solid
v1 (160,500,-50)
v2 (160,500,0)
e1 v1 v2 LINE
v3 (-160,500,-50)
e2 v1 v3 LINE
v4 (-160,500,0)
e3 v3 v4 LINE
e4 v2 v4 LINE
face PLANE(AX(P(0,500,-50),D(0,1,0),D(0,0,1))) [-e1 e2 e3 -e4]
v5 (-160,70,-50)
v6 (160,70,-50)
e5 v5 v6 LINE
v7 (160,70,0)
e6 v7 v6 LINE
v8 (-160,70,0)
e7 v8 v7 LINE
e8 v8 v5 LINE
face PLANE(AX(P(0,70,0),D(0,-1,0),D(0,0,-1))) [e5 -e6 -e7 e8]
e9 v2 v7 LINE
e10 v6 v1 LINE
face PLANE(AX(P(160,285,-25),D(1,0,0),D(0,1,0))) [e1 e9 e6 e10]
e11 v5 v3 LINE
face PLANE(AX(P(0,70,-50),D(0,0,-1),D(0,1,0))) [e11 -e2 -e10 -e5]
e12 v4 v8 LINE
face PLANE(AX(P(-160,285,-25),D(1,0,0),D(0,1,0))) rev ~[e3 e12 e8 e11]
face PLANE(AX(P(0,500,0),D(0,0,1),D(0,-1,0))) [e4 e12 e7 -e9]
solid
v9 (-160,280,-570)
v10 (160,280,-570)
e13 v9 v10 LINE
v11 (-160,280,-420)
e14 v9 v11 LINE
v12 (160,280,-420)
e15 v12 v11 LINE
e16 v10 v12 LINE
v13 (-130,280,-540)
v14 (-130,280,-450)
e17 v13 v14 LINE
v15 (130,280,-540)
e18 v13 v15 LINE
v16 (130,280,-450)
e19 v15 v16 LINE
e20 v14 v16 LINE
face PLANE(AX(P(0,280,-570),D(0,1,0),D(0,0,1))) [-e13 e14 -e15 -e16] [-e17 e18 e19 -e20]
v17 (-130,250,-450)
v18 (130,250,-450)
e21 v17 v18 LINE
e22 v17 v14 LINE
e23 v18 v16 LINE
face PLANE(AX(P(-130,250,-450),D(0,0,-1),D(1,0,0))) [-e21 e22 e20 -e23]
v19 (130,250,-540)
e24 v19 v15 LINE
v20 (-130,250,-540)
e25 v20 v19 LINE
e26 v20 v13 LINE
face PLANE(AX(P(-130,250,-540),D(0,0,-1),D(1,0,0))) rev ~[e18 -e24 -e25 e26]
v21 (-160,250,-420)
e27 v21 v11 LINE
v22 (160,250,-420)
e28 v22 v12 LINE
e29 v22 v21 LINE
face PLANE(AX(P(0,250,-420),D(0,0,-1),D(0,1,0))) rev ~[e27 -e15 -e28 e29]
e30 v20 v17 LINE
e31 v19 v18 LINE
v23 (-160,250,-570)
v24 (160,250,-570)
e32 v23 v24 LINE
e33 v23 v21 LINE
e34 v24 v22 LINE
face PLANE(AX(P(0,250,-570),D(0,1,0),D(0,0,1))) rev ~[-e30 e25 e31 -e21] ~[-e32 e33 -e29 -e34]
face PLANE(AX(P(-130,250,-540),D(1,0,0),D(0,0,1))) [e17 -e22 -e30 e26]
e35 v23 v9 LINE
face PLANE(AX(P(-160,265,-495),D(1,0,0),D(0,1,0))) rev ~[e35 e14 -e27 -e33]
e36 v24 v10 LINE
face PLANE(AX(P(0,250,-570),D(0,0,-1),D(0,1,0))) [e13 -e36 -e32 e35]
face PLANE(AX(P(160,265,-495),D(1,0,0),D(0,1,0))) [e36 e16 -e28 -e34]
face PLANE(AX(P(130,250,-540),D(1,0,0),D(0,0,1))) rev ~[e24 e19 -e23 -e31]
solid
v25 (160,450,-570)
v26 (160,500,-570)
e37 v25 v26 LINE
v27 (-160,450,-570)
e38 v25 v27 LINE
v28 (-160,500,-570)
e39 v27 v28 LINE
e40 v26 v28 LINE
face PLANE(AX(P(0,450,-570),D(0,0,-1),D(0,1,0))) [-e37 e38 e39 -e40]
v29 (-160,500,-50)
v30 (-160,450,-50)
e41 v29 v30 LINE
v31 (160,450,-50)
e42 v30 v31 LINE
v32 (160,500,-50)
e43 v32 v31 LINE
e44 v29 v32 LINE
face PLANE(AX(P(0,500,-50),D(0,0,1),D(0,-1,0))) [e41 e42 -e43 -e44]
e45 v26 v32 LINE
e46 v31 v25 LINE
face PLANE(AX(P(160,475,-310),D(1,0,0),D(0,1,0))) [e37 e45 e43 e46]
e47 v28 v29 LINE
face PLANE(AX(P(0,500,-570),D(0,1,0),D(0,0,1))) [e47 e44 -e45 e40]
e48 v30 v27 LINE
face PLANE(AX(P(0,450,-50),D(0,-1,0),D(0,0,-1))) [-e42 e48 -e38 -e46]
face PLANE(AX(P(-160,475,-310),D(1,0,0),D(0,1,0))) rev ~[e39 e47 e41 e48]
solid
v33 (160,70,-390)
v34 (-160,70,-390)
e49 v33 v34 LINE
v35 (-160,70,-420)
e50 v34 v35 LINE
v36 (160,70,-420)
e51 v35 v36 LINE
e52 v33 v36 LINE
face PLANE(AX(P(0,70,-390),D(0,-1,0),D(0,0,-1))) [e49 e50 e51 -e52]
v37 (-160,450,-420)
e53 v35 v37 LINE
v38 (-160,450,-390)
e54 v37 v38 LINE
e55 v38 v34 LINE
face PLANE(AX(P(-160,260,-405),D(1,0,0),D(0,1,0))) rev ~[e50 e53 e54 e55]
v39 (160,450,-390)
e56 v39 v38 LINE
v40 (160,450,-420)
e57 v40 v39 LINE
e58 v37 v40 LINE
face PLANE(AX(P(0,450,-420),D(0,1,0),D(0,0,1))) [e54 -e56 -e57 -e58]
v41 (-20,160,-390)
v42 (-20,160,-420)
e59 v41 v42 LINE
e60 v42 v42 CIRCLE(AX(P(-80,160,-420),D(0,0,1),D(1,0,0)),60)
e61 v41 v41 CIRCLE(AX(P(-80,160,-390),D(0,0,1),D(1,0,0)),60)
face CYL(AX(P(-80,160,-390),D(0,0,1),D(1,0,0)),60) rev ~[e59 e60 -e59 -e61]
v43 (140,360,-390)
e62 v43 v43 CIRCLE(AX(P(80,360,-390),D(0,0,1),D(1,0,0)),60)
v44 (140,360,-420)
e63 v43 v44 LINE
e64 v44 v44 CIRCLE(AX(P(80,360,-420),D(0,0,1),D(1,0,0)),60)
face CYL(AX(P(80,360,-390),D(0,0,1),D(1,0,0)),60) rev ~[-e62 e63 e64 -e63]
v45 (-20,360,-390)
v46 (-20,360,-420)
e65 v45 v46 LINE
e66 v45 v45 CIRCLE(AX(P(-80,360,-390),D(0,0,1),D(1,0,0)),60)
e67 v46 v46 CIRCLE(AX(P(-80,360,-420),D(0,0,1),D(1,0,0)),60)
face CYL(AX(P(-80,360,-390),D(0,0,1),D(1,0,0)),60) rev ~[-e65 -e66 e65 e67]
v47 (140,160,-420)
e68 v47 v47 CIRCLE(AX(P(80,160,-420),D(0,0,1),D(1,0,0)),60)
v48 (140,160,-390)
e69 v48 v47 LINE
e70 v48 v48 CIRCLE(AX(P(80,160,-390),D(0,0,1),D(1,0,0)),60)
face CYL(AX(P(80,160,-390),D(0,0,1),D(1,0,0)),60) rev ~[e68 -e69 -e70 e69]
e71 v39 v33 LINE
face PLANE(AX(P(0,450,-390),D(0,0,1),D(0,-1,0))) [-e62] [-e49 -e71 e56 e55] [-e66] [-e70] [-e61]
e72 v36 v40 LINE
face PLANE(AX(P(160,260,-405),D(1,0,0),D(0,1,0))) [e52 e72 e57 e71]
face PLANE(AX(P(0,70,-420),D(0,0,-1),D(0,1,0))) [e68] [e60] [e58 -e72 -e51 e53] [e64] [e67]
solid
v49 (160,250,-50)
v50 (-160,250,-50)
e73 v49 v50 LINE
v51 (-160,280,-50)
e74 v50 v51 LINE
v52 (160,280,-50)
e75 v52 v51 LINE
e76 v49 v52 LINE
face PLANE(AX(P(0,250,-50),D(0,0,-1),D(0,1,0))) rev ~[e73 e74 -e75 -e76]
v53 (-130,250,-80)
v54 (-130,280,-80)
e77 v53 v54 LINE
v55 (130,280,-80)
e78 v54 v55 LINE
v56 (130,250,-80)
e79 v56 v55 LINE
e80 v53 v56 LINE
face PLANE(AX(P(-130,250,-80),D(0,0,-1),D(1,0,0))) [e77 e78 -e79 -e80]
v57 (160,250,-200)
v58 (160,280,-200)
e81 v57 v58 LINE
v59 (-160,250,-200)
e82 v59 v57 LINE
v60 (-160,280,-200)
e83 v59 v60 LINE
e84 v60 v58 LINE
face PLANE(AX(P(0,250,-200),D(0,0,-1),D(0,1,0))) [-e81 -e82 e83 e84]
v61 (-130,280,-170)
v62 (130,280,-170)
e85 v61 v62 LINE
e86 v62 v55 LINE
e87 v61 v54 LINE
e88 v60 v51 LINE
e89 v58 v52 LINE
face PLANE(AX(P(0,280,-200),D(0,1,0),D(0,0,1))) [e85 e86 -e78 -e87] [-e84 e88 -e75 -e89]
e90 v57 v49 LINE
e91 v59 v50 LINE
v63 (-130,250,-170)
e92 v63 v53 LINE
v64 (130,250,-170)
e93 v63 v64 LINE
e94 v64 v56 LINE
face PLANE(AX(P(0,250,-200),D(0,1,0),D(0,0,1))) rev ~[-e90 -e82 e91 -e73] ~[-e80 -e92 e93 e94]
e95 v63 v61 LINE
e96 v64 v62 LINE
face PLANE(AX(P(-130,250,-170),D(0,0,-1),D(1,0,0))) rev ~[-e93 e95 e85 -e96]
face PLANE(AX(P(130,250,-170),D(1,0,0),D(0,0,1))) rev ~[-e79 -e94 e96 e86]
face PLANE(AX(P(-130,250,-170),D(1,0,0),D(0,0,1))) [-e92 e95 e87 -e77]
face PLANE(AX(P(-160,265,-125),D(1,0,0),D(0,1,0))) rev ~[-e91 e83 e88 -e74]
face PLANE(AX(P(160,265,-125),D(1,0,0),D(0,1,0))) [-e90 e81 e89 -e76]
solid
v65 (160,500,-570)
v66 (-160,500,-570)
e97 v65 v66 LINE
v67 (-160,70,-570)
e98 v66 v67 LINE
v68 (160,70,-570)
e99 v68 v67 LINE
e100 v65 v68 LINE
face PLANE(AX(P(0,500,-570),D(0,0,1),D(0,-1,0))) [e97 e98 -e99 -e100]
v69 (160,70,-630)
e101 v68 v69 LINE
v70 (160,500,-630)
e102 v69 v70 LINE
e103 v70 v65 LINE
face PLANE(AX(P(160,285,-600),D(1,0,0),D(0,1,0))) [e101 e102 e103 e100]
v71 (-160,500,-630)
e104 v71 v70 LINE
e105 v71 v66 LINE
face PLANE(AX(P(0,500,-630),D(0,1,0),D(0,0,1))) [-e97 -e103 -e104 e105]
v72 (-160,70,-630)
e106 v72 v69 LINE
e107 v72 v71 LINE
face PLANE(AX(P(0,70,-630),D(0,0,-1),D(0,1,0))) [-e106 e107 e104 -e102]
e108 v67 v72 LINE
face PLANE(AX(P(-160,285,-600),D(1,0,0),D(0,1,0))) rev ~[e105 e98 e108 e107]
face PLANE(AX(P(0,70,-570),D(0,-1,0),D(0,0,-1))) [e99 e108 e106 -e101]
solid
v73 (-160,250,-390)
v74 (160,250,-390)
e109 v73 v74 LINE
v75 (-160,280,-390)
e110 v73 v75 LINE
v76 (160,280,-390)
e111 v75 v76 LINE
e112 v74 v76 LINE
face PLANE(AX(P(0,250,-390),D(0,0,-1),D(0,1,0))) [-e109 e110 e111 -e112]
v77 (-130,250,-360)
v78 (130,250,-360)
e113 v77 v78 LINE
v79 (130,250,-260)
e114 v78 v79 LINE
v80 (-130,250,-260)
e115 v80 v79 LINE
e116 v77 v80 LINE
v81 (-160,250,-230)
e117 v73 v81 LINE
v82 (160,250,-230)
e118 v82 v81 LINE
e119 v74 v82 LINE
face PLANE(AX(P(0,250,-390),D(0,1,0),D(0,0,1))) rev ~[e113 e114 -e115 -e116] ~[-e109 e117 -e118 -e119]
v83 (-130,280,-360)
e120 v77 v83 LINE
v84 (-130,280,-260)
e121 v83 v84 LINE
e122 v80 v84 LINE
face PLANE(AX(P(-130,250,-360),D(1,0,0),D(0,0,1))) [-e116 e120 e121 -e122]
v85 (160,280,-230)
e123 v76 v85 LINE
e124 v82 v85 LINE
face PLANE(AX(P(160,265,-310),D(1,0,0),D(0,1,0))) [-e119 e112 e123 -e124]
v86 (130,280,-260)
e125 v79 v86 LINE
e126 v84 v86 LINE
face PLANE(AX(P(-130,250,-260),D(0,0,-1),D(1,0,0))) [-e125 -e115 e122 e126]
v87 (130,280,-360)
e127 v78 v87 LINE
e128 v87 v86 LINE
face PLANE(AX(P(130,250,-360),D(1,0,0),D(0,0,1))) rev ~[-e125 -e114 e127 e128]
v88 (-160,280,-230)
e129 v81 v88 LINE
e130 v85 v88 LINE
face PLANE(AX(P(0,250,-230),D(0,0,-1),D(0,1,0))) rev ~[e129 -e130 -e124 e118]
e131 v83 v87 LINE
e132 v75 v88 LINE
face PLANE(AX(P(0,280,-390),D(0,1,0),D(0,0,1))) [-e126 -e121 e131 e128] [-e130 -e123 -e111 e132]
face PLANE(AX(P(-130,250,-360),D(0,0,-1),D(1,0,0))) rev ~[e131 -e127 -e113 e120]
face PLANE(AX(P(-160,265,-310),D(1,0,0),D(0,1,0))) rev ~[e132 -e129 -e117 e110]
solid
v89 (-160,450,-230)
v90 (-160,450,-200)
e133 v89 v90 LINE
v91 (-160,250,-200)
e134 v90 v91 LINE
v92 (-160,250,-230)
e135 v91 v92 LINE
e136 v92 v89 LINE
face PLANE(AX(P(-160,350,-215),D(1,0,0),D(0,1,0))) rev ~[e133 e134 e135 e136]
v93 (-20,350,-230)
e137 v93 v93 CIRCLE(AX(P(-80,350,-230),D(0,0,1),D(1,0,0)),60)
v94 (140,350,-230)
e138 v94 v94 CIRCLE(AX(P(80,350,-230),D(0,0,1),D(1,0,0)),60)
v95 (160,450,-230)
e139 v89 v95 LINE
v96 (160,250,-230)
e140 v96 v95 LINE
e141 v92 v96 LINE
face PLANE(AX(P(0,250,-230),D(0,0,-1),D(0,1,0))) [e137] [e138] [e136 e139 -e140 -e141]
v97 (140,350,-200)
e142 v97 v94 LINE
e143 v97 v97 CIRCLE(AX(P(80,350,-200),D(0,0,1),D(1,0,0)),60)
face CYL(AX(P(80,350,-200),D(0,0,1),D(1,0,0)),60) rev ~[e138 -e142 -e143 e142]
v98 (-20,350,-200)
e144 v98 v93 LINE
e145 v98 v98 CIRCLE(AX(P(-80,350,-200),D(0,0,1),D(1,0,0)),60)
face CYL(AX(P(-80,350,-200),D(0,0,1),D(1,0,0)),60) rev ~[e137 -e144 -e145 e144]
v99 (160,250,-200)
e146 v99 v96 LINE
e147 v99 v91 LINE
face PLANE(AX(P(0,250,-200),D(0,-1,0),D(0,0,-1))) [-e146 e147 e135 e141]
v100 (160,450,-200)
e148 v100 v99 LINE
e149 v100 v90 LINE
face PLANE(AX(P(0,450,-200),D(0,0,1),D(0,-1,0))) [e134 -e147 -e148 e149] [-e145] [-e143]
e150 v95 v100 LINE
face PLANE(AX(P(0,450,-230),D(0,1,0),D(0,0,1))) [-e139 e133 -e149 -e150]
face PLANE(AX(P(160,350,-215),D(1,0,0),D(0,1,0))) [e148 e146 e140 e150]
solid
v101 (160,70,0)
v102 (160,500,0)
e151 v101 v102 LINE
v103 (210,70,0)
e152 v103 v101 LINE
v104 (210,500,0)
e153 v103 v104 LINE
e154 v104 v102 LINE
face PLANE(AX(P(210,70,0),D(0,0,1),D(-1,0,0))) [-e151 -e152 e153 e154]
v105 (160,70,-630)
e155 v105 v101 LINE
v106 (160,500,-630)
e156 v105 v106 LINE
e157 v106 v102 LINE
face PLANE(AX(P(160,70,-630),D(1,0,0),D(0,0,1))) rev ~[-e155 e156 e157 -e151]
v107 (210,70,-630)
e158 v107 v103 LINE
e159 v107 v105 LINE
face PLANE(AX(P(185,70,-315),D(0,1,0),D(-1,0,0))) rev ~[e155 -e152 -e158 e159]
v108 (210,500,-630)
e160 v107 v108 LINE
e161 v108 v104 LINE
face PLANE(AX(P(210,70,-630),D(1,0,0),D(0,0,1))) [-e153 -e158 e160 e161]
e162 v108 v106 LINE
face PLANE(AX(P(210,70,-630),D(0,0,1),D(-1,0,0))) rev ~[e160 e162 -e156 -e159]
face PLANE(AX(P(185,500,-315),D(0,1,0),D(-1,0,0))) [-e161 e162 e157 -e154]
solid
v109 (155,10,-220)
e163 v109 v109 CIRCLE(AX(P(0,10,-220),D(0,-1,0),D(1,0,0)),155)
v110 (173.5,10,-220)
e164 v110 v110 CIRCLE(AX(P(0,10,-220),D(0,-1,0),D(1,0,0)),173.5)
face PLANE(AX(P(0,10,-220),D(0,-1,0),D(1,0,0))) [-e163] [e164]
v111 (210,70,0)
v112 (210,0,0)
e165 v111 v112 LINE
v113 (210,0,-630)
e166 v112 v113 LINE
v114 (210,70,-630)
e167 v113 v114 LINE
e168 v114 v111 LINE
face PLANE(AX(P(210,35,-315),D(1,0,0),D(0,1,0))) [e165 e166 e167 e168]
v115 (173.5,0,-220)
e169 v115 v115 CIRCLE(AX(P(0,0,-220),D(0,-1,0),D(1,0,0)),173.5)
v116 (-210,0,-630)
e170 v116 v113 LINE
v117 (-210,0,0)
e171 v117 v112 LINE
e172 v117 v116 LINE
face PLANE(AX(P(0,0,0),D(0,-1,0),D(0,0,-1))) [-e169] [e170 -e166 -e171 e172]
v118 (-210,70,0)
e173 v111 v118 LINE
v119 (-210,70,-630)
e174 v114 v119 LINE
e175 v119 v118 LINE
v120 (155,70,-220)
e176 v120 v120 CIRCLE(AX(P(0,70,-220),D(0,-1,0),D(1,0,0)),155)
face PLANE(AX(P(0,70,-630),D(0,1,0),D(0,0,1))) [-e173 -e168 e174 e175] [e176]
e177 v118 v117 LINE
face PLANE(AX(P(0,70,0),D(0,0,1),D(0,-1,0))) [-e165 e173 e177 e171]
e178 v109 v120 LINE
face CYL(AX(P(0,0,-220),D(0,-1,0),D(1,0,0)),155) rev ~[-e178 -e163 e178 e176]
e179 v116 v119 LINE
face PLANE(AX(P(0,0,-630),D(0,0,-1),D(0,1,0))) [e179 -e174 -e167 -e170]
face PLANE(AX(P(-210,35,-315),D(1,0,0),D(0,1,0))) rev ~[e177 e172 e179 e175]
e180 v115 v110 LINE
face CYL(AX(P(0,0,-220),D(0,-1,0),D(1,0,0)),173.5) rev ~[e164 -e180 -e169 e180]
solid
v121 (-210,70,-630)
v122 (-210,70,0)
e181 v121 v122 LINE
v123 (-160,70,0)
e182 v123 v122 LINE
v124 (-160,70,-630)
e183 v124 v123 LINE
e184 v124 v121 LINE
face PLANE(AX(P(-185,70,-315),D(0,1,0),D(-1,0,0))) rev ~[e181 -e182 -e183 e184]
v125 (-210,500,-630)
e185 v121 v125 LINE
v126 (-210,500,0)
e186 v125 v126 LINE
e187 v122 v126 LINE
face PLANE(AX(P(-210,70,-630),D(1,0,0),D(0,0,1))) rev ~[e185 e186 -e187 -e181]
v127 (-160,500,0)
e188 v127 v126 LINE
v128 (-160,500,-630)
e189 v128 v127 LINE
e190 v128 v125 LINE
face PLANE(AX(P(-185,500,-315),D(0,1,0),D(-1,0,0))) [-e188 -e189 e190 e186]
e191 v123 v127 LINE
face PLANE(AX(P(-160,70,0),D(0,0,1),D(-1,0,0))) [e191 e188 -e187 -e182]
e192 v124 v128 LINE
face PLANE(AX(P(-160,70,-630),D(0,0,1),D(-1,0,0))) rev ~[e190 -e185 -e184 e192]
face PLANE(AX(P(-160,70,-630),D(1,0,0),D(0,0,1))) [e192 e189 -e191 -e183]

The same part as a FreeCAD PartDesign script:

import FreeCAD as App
import Part
import Sketcher

V = App.Vector

doc = App.newDocument("Part")
params = doc.addObject("Spreadsheet::Sheet", "Params")
for row, (alias, value) in enumerate([
    ("sketch1_width", "70 mm"),
    ("sketch1_height", "630 mm"),
    ("pad1_length", "420 mm"),
    ("sketch2_diameter", "310 mm"),
    ("sketch3_diameter", "347 mm"),
    ("sketch3_diameter2", "310 mm"),
    ("pocket2_length", "10 mm"),
    ("sketch4_width", "430 mm"),
    ("sketch4_height", "60 mm"),
    ("pad2_length", "320 mm"),
    ("sketch5_width", "430 mm"),
    ("sketch5_height", "50 mm"),
    ("pad3_length", "320 mm"),
    ("sketch6_width", "50 mm"),
    ("sketch6_height", "520 mm"),
    ("pad4_length", "320 mm"),
    ("sketch7_width", "50 mm"),
    ("sketch7_height", "630 mm"),
    ("pad5_length", "430 mm"),
    ("sketch8_width", "50 mm"),
    ("sketch8_height", "630 mm"),
    ("pad6_length", "430 mm"),
    ("sketch9_width", "30 mm"),
    ("sketch9_height", "150 mm"),
    ("pad7_length", "320 mm"),
    ("sketch10_width", "260 mm"),
    ("sketch10_height", "90 mm"),
    ("sketch11_width", "200 mm"),
    ("sketch11_height", "30 mm"),
    ("pad8_length", "320 mm"),
    ("sketch12_diameter", "120 mm"),
    ("sketch13_width", "30 mm"),
    ("sketch13_height", "160 mm"),
    ("pad9_length", "320 mm"),
    ("sketch14_width", "260 mm"),
    ("sketch14_height", "100 mm"),
    ("sketch15_width", "380 mm"),
    ("sketch15_height", "30 mm"),
    ("pad10_length", "320 mm"),
    ("sketch16_diameter", "120 mm"),
    ("sketch17_width", "30 mm"),
    ("sketch17_height", "150 mm"),
    ("pad11_length", "320 mm"),
    ("sketch18_width", "260 mm"),
    ("sketch18_height", "90 mm"),
], start=1):
    params.set(f"A{row}", alias)
    params.set(f"B{row}", "=" + value)
    params.setAlias(f"B{row}", alias)

body = doc.addObject("PartDesign::Body", "Body")

# Sketch on YZ plane
sketch1 = doc.addObject("Sketcher::SketchObject", "Sketch")
body.addObject(sketch1)
sketch1.AttachmentSupport = (doc.YZ_Plane, [""])
sketch1.MapMode = "FlatFace"
sketch1.addGeometry([
    Part.LineSegment(V(70, 0, 0), V(0, 0, 0)),
    Part.LineSegment(V(0, 0, 0), V(0, -630, 0)),
    Part.LineSegment(V(0, -630, 0), V(70, -630, 0)),
    Part.LineSegment(V(70, -630, 0), V(70, 0, 0)),
], False)
sketch1.addConstraint([
    Sketcher.Constraint("Coincident", 0, 2, 1, 1),
    Sketcher.Constraint("Coincident", 1, 2, 2, 1),
    Sketcher.Constraint("Coincident", 2, 2, 3, 1),
    Sketcher.Constraint("Coincident", 3, 2, 0, 1),
    Sketcher.Constraint("Horizontal", 0),
    Sketcher.Constraint("Vertical", 1),
    Sketcher.Constraint("Horizontal", 2),
    Sketcher.Constraint("Vertical", 3),
    Sketcher.Constraint("Coincident", 0, 2, -1, 1),
    Sketcher.Constraint("DistanceX", 0, 2, 0, 1, 70.0),
    Sketcher.Constraint("DistanceY", 1, 2, 1, 1, 630.0),
])
sketch1.setExpression("Constraints[9]", "Params.sketch1_width")
sketch1.setExpression("Constraints[10]", "Params.sketch1_height")
pad1 = doc.addObject("PartDesign::Pad", "Pad")
body.addObject(pad1)
pad1.Profile = sketch1
pad1.setExpression("Length", "Params.pad1_length")
pad1.Midplane = True

# Sketch on XZ plane
sketch2 = doc.addObject("Sketcher::SketchObject", "Sketch001")
body.addObject(sketch2)
sketch2.AttachmentSupport = (doc.XZ_Plane, [""])
sketch2.MapMode = "FlatFace"
sketch2.addGeometry(Part.Circle(V(0, -220, 0), V(0, 0, 1), 155), False)
sketch2.addConstraint([
    Sketcher.Constraint("PointOnObject", 0, 3, -2),
    Sketcher.Constraint("Diameter", 0, 310.0),
    Sketcher.Constraint("DistanceY", 0, 3, -1, 1, 220.0),
])
sketch2.setExpression("Constraints[1]", "Params.sketch2_diameter")
pocket1 = doc.addObject("PartDesign::Pocket", "Pocket")
body.addObject(pocket1)
pocket1.Profile = sketch2
pocket1.Type = "ThroughAll"

# Sketch on XZ plane
sketch3 = doc.addObject("Sketcher::SketchObject", "Sketch002")
body.addObject(sketch3)
sketch3.AttachmentSupport = (doc.XZ_Plane, [""])
sketch3.MapMode = "FlatFace"
sketch3.addGeometry([
    Part.Circle(V(0, -220, 0), V(0, 0, 1), 174),
    Part.Circle(V(0, -220, 0), V(0, 0, 1), 155),
], False)
sketch3.addConstraint([
    Sketcher.Constraint("Coincident", 1, 3, 0, 3),
    Sketcher.Constraint("PointOnObject", 0, 3, -2),
    Sketcher.Constraint("Diameter", 0, 347.0),
    Sketcher.Constraint("Diameter", 1, 310.0),
    Sketcher.Constraint("DistanceY", 0, 3, -1, 1, 220.0),
])
sketch3.setExpression("Constraints[2]", "Params.sketch3_diameter")
sketch3.setExpression("Constraints[3]", "Params.sketch3_diameter2")
pocket2 = doc.addObject("PartDesign::Pocket", "Pocket001")
body.addObject(pocket2)
pocket2.Profile = sketch3
pocket2.setExpression("Length", "Params.pocket2_length")
body2 = doc.addObject("PartDesign::Body", "Body001")

# Sketch on YZ plane
sketch4 = doc.addObject("Sketcher::SketchObject", "Sketch003")
body2.addObject(sketch4)
sketch4.AttachmentSupport = (doc.getObject("YZ_Plane001"), [""])
sketch4.MapMode = "FlatFace"
sketch4.addGeometry([
    Part.LineSegment(V(70, -570, 0), V(70, -630, 0)),
    Part.LineSegment(V(70, -630, 0), V(500, -630, 0)),
    Part.LineSegment(V(500, -630, 0), V(500, -570, 0)),
    Part.LineSegment(V(500, -570, 0), V(70, -570, 0)),
], False)
sketch4.addConstraint([
    Sketcher.Constraint("Coincident", 0, 2, 1, 1),
    Sketcher.Constraint("Coincident", 1, 2, 2, 1),
    Sketcher.Constraint("Coincident", 2, 2, 3, 1),
    Sketcher.Constraint("Coincident", 3, 2, 0, 1),
    Sketcher.Constraint("Vertical", 0),
    Sketcher.Constraint("Horizontal", 1),
    Sketcher.Constraint("Vertical", 2),
    Sketcher.Constraint("Horizontal", 3),
    Sketcher.Constraint("DistanceX", 1, 1, 1, 2, 430.0),
    Sketcher.Constraint("DistanceY", 0, 2, 0, 1, 60.0),
    Sketcher.Constraint("DistanceX", -1, 1, 0, 2, 70.0),
    Sketcher.Constraint("DistanceY", 0, 2, -1, 1, 630.0),
])
sketch4.setExpression("Constraints[8]", "Params.sketch4_width")
sketch4.setExpression("Constraints[9]", "Params.sketch4_height")
pad2 = doc.addObject("PartDesign::Pad", "Pad001")
body2.addObject(pad2)
pad2.Profile = sketch4
pad2.setExpression("Length", "Params.pad2_length")
pad2.Midplane = True
body3 = doc.addObject("PartDesign::Body", "Body002")

# Sketch on YZ plane
sketch5 = doc.addObject("Sketcher::SketchObject", "Sketch004")
body3.addObject(sketch5)
sketch5.AttachmentSupport = (doc.getObject("YZ_Plane002"), [""])
sketch5.MapMode = "FlatFace"
sketch5.addGeometry([
    Part.LineSegment(V(500, 0, 0), V(70, 0, 0)),
    Part.LineSegment(V(70, 0, 0), V(70, -50, 0)),
    Part.LineSegment(V(70, -50, 0), V(500, -50, 0)),
    Part.LineSegment(V(500, -50, 0), V(500, 0, 0)),
], False)
sketch5.addConstraint([
    Sketcher.Constraint("Coincident", 0, 2, 1, 1),
    Sketcher.Constraint("Coincident", 1, 2, 2, 1),
    Sketcher.Constraint("Coincident", 2, 2, 3, 1),
    Sketcher.Constraint("Coincident", 3, 2, 0, 1),
    Sketcher.Constraint("Horizontal", 0),
    Sketcher.Constraint("Vertical", 1),
    Sketcher.Constraint("Horizontal", 2),
    Sketcher.Constraint("Vertical", 3),
    Sketcher.Constraint("PointOnObject", 0, 2, -1),
    Sketcher.Constraint("DistanceX", 0, 2, 0, 1, 430.0),
    Sketcher.Constraint("DistanceY", 1, 2, 1, 1, 50.0),
    Sketcher.Constraint("DistanceX", -1, 1, 0, 2, 70.0),
])
sketch5.setExpression("Constraints[9]", "Params.sketch5_width")
sketch5.setExpression("Constraints[10]", "Params.sketch5_height")
pad3 = doc.addObject("PartDesign::Pad", "Pad002")
body3.addObject(pad3)
pad3.Profile = sketch5
pad3.setExpression("Length", "Params.pad3_length")
pad3.Midplane = True
body4 = doc.addObject("PartDesign::Body", "Body003")

# Sketch on YZ plane
sketch6 = doc.addObject("Sketcher::SketchObject", "Sketch005")
body4.addObject(sketch6)
sketch6.AttachmentSupport = (doc.getObject("YZ_Plane003"), [""])
sketch6.MapMode = "FlatFace"
sketch6.addGeometry([
    Part.LineSegment(V(500, -570, 0), V(500, -50, 0)),
    Part.LineSegment(V(500, -50, 0), V(450, -50, 0)),
    Part.LineSegment(V(450, -50, 0), V(450, -570, 0)),
    Part.LineSegment(V(450, -570, 0), V(500, -570, 0)),
], False)
sketch6.addConstraint([
    Sketcher.Constraint("Coincident", 0, 2, 1, 1),
    Sketcher.Constraint("Coincident", 1, 2, 2, 1),
    Sketcher.Constraint("Coincident", 2, 2, 3, 1),
    Sketcher.Constraint("Coincident", 3, 2, 0, 1),
    Sketcher.Constraint("Vertical", 0),
    Sketcher.Constraint("Horizontal", 1),
    Sketcher.Constraint("Vertical", 2),
    Sketcher.Constraint("Horizontal", 3),
    Sketcher.Constraint("DistanceX", 1, 2, 1, 1, 50.0),
    Sketcher.Constraint("DistanceY", 0, 1, 0, 2, 520.0),
    Sketcher.Constraint("DistanceX", -1, 1, 0, 2, 500.0),
    Sketcher.Constraint("DistanceY", 0, 2, -1, 1, 50.0),
])
sketch6.setExpression("Constraints[8]", "Params.sketch6_width")
sketch6.setExpression("Constraints[9]", "Params.sketch6_height")
pad4 = doc.addObject("PartDesign::Pad", "Pad003")
body4.addObject(pad4)
pad4.Profile = sketch6
pad4.setExpression("Length", "Params.pad4_length")
pad4.Midplane = True
body5 = doc.addObject("PartDesign::Body", "Body004")

# Sketch on XZ plane
sketch7 = doc.addObject("Sketcher::SketchObject", "Sketch006")
body5.addObject(sketch7)
sketch7.AttachmentSupport = (doc.getObject("XZ_Plane004"), [""])
sketch7.MapMode = "FlatFace"
sketch7.AttachmentOffset = App.Placement(V(0, 0, -70), App.Rotation())
sketch7.addGeometry([
    Part.LineSegment(V(210, 0, 0), V(210, -630, 0)),
    Part.LineSegment(V(210, -630, 0), V(160, -630, 0)),
    Part.LineSegment(V(160, -630, 0), V(160, 0, 0)),
    Part.LineSegment(V(160, 0, 0), V(210, 0, 0)),
], False)
sketch7.addConstraint([
    Sketcher.Constraint("Coincident", 0, 2, 1, 1),
    Sketcher.Constraint("Coincident", 1, 2, 2, 1),
    Sketcher.Constraint("Coincident", 2, 2, 3, 1),
    Sketcher.Constraint("Coincident", 3, 2, 0, 1),
    Sketcher.Constraint("Vertical", 0),
    Sketcher.Constraint("Horizontal", 1),
    Sketcher.Constraint("Vertical", 2),
    Sketcher.Constraint("Horizontal", 3),
    Sketcher.Constraint("PointOnObject", 2, 2, -1),
    Sketcher.Constraint("DistanceX", 1, 2, 1, 1, 50.0),
    Sketcher.Constraint("DistanceY", 0, 2, 0, 1, 630.0),
    Sketcher.Constraint("DistanceX", -1, 1, 0, 2, 210.0),
])
sketch7.setExpression("Constraints[9]", "Params.sketch7_width")
sketch7.setExpression("Constraints[10]", "Params.sketch7_height")
pad5 = doc.addObject("PartDesign::Pad", "Pad004")
body5.addObject(pad5)
pad5.Profile = sketch7
pad5.setExpression("Length", "Params.pad5_length")
pad5.Reversed = True
body6 = doc.addObject("PartDesign::Body", "Body005")

# Sketch on XZ plane
sketch8 = doc.addObject("Sketcher::SketchObject", "Sketch007")
body6.addObject(sketch8)
sketch8.AttachmentSupport = (doc.getObject("XZ_Plane005"), [""])
sketch8.MapMode = "FlatFace"
sketch8.AttachmentOffset = App.Placement(V(0, 0, -70), App.Rotation())
sketch8.addGeometry([
    Part.LineSegment(V(-160, 0, 0), V(-160, -630, 0)),
    Part.LineSegment(V(-160, -630, 0), V(-210, -630, 0)),
    Part.LineSegment(V(-210, -630, 0), V(-210, 0, 0)),
    Part.LineSegment(V(-210, 0, 0), V(-160, 0, 0)),
], False)
sketch8.addConstraint([
    Sketcher.Constraint("Coincident", 0, 2, 1, 1),
    Sketcher.Constraint("Coincident", 1, 2, 2, 1),
    Sketcher.Constraint("Coincident", 2, 2, 3, 1),
    Sketcher.Constraint("Coincident", 3, 2, 0, 1),
    Sketcher.Constraint("Vertical", 0),
    Sketcher.Constraint("Horizontal", 1),
    Sketcher.Constraint("Vertical", 2),
    Sketcher.Constraint("Horizontal", 3),
    Sketcher.Constraint("PointOnObject", 2, 2, -1),
    Sketcher.Constraint("DistanceX", 1, 2, 1, 1, 50.0),
    Sketcher.Constraint("DistanceY", 0, 2, 0, 1, 630.0),
    Sketcher.Constraint("DistanceX", 0, 2, -1, 1, 160.0),
])
sketch8.setExpression("Constraints[9]", "Params.sketch8_width")
sketch8.setExpression("Constraints[10]", "Params.sketch8_height")
pad6 = doc.addObject("PartDesign::Pad", "Pad005")
body6.addObject(pad6)
pad6.Profile = sketch8
pad6.setExpression("Length", "Params.pad6_length")
pad6.Reversed = True
body7 = doc.addObject("PartDesign::Body", "Body006")

# Sketch on YZ plane
sketch9 = doc.addObject("Sketcher::SketchObject", "Sketch008")
body7.addObject(sketch9)
sketch9.AttachmentSupport = (doc.getObject("YZ_Plane006"), [""])
sketch9.MapMode = "FlatFace"
sketch9.addGeometry([
    Part.LineSegment(V(250, -50, 0), V(250, -200, 0)),
    Part.LineSegment(V(250, -200, 0), V(280, -200, 0)),
    Part.LineSegment(V(280, -200, 0), V(280, -50, 0)),
    Part.LineSegment(V(280, -50, 0), V(250, -50, 0)),
], False)
sketch9.addConstraint([
    Sketcher.Constraint("Coincident", 0, 2, 1, 1),
    Sketcher.Constraint("Coincident", 1, 2, 2, 1),
    Sketcher.Constraint("Coincident", 2, 2, 3, 1),
    Sketcher.Constraint("Coincident", 3, 2, 0, 1),
    Sketcher.Constraint("Vertical", 0),
    Sketcher.Constraint("Horizontal", 1),
    Sketcher.Constraint("Vertical", 2),
    Sketcher.Constraint("Horizontal", 3),
    Sketcher.Constraint("DistanceX", 1, 1, 1, 2, 30.0),
    Sketcher.Constraint("DistanceY", 0, 2, 0, 1, 150.0),
    Sketcher.Constraint("DistanceX", -1, 1, 0, 2, 250.0),
    Sketcher.Constraint("DistanceY", 0, 2, -1, 1, 200.0),
])
sketch9.setExpression("Constraints[8]", "Params.sketch9_width")
sketch9.setExpression("Constraints[9]", "Params.sketch9_height")
pad7 = doc.addObject("PartDesign::Pad", "Pad006")
body7.addObject(pad7)
pad7.Profile = sketch9
pad7.setExpression("Length", "Params.pad7_length")
pad7.Midplane = True

# Sketch on XZ plane
sketch10 = doc.addObject("Sketcher::SketchObject", "Sketch009")
body7.addObject(sketch10)
sketch10.AttachmentSupport = (doc.getObject("XZ_Plane006"), [""])
sketch10.MapMode = "FlatFace"
sketch10.AttachmentOffset = App.Placement(V(0, 0, -250), App.Rotation())
sketch10.addGeometry([
    Part.LineSegment(V(-130, -80, 0), V(-130, -170, 0)),
    Part.LineSegment(V(-130, -170, 0), V(130, -170, 0)),
    Part.LineSegment(V(130, -170, 0), V(130, -80, 0)),
    Part.LineSegment(V(130, -80, 0), V(-130, -80, 0)),
], False)
sketch10.addConstraint([
    Sketcher.Constraint("Coincident", 0, 2, 1, 1),
    Sketcher.Constraint("Coincident", 1, 2, 2, 1),
    Sketcher.Constraint("Coincident", 2, 2, 3, 1),
    Sketcher.Constraint("Coincident", 3, 2, 0, 1),
    Sketcher.Constraint("Vertical", 0),
    Sketcher.Constraint("Horizontal", 1),
    Sketcher.Constraint("Vertical", 2),
    Sketcher.Constraint("Horizontal", 3),
    Sketcher.Constraint("DistanceX", 1, 1, 1, 2, 260.0),
    Sketcher.Constraint("DistanceY", 0, 2, 0, 1, 90.0),
    Sketcher.Constraint("DistanceX", 0, 2, -1, 1, 130.0),
    Sketcher.Constraint("DistanceY", 0, 2, -1, 1, 170.0),
])
sketch10.setExpression("Constraints[8]", "Params.sketch10_width")
sketch10.setExpression("Constraints[9]", "Params.sketch10_height")
pocket3 = doc.addObject("PartDesign::Pocket", "Pocket002")
body7.addObject(pocket3)
pocket3.Profile = sketch10
pocket3.Type = "ThroughAll"
body8 = doc.addObject("PartDesign::Body", "Body007")

# Sketch on YZ plane
sketch11 = doc.addObject("Sketcher::SketchObject", "Sketch010")
body8.addObject(sketch11)
sketch11.AttachmentSupport = (doc.getObject("YZ_Plane007"), [""])
sketch11.MapMode = "FlatFace"
sketch11.addGeometry([
    Part.LineSegment(V(250, -200, 0), V(250, -230, 0)),
    Part.LineSegment(V(250, -230, 0), V(450, -230, 0)),
    Part.LineSegment(V(450, -230, 0), V(450, -200, 0)),
    Part.LineSegment(V(450, -200, 0), V(250, -200, 0)),
], False)
sketch11.addConstraint([
    Sketcher.Constraint("Coincident", 0, 2, 1, 1),
    Sketcher.Constraint("Coincident", 1, 2, 2, 1),
    Sketcher.Constraint("Coincident", 2, 2, 3, 1),
    Sketcher.Constraint("Coincident", 3, 2, 0, 1),
    Sketcher.Constraint("Vertical", 0),
    Sketcher.Constraint("Horizontal", 1),
    Sketcher.Constraint("Vertical", 2),
    Sketcher.Constraint("Horizontal", 3),
    Sketcher.Constraint("DistanceX", 1, 1, 1, 2, 200.0),
    Sketcher.Constraint("DistanceY", 0, 2, 0, 1, 30.0),
    Sketcher.Constraint("DistanceX", -1, 1, 0, 2, 250.0),
    Sketcher.Constraint("DistanceY", 0, 2, -1, 1, 230.0),
])
sketch11.setExpression("Constraints[8]", "Params.sketch11_width")
sketch11.setExpression("Constraints[9]", "Params.sketch11_height")
pad8 = doc.addObject("PartDesign::Pad", "Pad007")
body8.addObject(pad8)
pad8.Profile = sketch11
pad8.setExpression("Length", "Params.pad8_length")
pad8.Midplane = True

# Sketch on XY plane
sketch12 = doc.addObject("Sketcher::SketchObject", "Sketch011")
body8.addObject(sketch12)
sketch12.AttachmentSupport = (doc.getObject("XY_Plane007"), [""])
sketch12.MapMode = "FlatFace"
sketch12.AttachmentOffset = App.Placement(V(0, 0, -200), App.Rotation())
sketch12.addGeometry([
    Part.Circle(V(-80, 350, 0), V(0, 0, 1), 60),
    Part.Circle(V(80, 350, 0), V(0, 0, 1), 60),
], False)
sketch12.addConstraint([
    Sketcher.Constraint("Equal", 0, 1),
    Sketcher.Constraint("Symmetric", 0, 3, 1, 3, -2),
    Sketcher.Constraint("Diameter", 0, 120.0),
    Sketcher.Constraint("DistanceX", 0, 3, -1, 1, 80.0),
    Sketcher.Constraint("DistanceY", -1, 1, 0, 3, 350.0),
])
sketch12.setExpression("Constraints[2]", "Params.sketch12_diameter")
pocket4 = doc.addObject("PartDesign::Pocket", "Pocket003")
body8.addObject(pocket4)
pocket4.Profile = sketch12
pocket4.Type = "ThroughAll"
body9 = doc.addObject("PartDesign::Body", "Body008")

# Sketch on YZ plane
sketch13 = doc.addObject("Sketcher::SketchObject", "Sketch012")
body9.addObject(sketch13)
sketch13.AttachmentSupport = (doc.getObject("YZ_Plane008"), [""])
sketch13.MapMode = "FlatFace"
sketch13.addGeometry([
    Part.LineSegment(V(250, -230, 0), V(250, -390, 0)),
    Part.LineSegment(V(250, -390, 0), V(280, -390, 0)),
    Part.LineSegment(V(280, -390, 0), V(280, -230, 0)),
    Part.LineSegment(V(280, -230, 0), V(250, -230, 0)),
], False)
sketch13.addConstraint([
    Sketcher.Constraint("Coincident", 0, 2, 1, 1),
    Sketcher.Constraint("Coincident", 1, 2, 2, 1),
    Sketcher.Constraint("Coincident", 2, 2, 3, 1),
    Sketcher.Constraint("Coincident", 3, 2, 0, 1),
    Sketcher.Constraint("Vertical", 0),
    Sketcher.Constraint("Horizontal", 1),
    Sketcher.Constraint("Vertical", 2),
    Sketcher.Constraint("Horizontal", 3),
    Sketcher.Constraint("DistanceX", 1, 1, 1, 2, 30.0),
    Sketcher.Constraint("DistanceY", 0, 2, 0, 1, 160.0),
    Sketcher.Constraint("DistanceX", -1, 1, 0, 2, 250.0),
    Sketcher.Constraint("DistanceY", 0, 2, -1, 1, 390.0),
])
sketch13.setExpression("Constraints[8]", "Params.sketch13_width")
sketch13.setExpression("Constraints[9]", "Params.sketch13_height")
pad9 = doc.addObject("PartDesign::Pad", "Pad008")
body9.addObject(pad9)
pad9.Profile = sketch13
pad9.setExpression("Length", "Params.pad9_length")
pad9.Midplane = True

# Sketch on XZ plane
sketch14 = doc.addObject("Sketcher::SketchObject", "Sketch013")
body9.addObject(sketch14)
sketch14.AttachmentSupport = (doc.getObject("XZ_Plane008"), [""])
sketch14.MapMode = "FlatFace"
sketch14.AttachmentOffset = App.Placement(V(0, 0, -250), App.Rotation())
sketch14.addGeometry([
    Part.LineSegment(V(-130, -260, 0), V(-130, -360, 0)),
    Part.LineSegment(V(-130, -360, 0), V(130, -360, 0)),
    Part.LineSegment(V(130, -360, 0), V(130, -260, 0)),
    Part.LineSegment(V(130, -260, 0), V(-130, -260, 0)),
], False)
sketch14.addConstraint([
    Sketcher.Constraint("Coincident", 0, 2, 1, 1),
    Sketcher.Constraint("Coincident", 1, 2, 2, 1),
    Sketcher.Constraint("Coincident", 2, 2, 3, 1),
    Sketcher.Constraint("Coincident", 3, 2, 0, 1),
    Sketcher.Constraint("Vertical", 0),
    Sketcher.Constraint("Horizontal", 1),
    Sketcher.Constraint("Vertical", 2),
    Sketcher.Constraint("Horizontal", 3),
    Sketcher.Constraint("DistanceX", 1, 1, 1, 2, 260.0),
    Sketcher.Constraint("DistanceY", 0, 2, 0, 1, 100.0),
    Sketcher.Constraint("DistanceX", 0, 2, -1, 1, 130.0),
    Sketcher.Constraint("DistanceY", 0, 2, -1, 1, 360.0),
])
sketch14.setExpression("Constraints[8]", "Params.sketch14_width")
sketch14.setExpression("Constraints[9]", "Params.sketch14_height")
pocket5 = doc.addObject("PartDesign::Pocket", "Pocket004")
body9.addObject(pocket5)
pocket5.Profile = sketch14
pocket5.Type = "ThroughAll"
body10 = doc.addObject("PartDesign::Body", "Body009")

# Sketch on YZ plane
sketch15 = doc.addObject("Sketcher::SketchObject", "Sketch014")
body10.addObject(sketch15)
sketch15.AttachmentSupport = (doc.getObject("YZ_Plane009"), [""])
sketch15.MapMode = "FlatFace"
sketch15.addGeometry([
    Part.LineSegment(V(70, -390, 0), V(70, -420, 0)),
    Part.LineSegment(V(70, -420, 0), V(450, -420, 0)),
    Part.LineSegment(V(450, -420, 0), V(450, -390, 0)),
    Part.LineSegment(V(450, -390, 0), V(70, -390, 0)),
], False)
sketch15.addConstraint([
    Sketcher.Constraint("Coincident", 0, 2, 1, 1),
    Sketcher.Constraint("Coincident", 1, 2, 2, 1),
    Sketcher.Constraint("Coincident", 2, 2, 3, 1),
    Sketcher.Constraint("Coincident", 3, 2, 0, 1),
    Sketcher.Constraint("Vertical", 0),
    Sketcher.Constraint("Horizontal", 1),
    Sketcher.Constraint("Vertical", 2),
    Sketcher.Constraint("Horizontal", 3),
    Sketcher.Constraint("DistanceX", 1, 1, 1, 2, 380.0),
    Sketcher.Constraint("DistanceY", 0, 2, 0, 1, 30.0),
    Sketcher.Constraint("DistanceX", -1, 1, 0, 2, 70.0),
    Sketcher.Constraint("DistanceY", 0, 2, -1, 1, 420.0),
])
sketch15.setExpression("Constraints[8]", "Params.sketch15_width")
sketch15.setExpression("Constraints[9]", "Params.sketch15_height")
pad10 = doc.addObject("PartDesign::Pad", "Pad009")
body10.addObject(pad10)
pad10.Profile = sketch15
pad10.setExpression("Length", "Params.pad10_length")
pad10.Midplane = True

# Sketch on XY plane
sketch16 = doc.addObject("Sketcher::SketchObject", "Sketch015")
body10.addObject(sketch16)
sketch16.AttachmentSupport = (doc.getObject("XY_Plane009"), [""])
sketch16.MapMode = "FlatFace"
sketch16.AttachmentOffset = App.Placement(V(0, 0, -390), App.Rotation())
sketch16.addGeometry([
    Part.Circle(V(-80, 360, 0), V(0, 0, 1), 60),
    Part.Circle(V(80, 360, 0), V(0, 0, 1), 60),
    Part.Circle(V(-80, 160, 0), V(0, 0, 1), 60),
    Part.Circle(V(80, 160, 0), V(0, 0, 1), 60),
], False)
sketch16.addConstraint([
    Sketcher.Constraint("Equal", 0, 1),
    Sketcher.Constraint("Equal", 1, 2),
    Sketcher.Constraint("Equal", 2, 3),
    Sketcher.Constraint("Symmetric", 0, 3, 1, 3, -2),
    Sketcher.Constraint("Symmetric", 2, 3, 3, 3, -2),
    Sketcher.Constraint("Vertical", 0, 3, 2, 3),
    Sketcher.Constraint("Diameter", 0, 120.0),
    Sketcher.Constraint("DistanceX", 0, 3, -1, 1, 80.0),
    Sketcher.Constraint("DistanceY", -1, 1, 0, 3, 360.0),
    Sketcher.Constraint("DistanceY", -1, 1, 2, 3, 160.0),
])
sketch16.setExpression("Constraints[6]", "Params.sketch16_diameter")
pocket6 = doc.addObject("PartDesign::Pocket", "Pocket005")
body10.addObject(pocket6)
pocket6.Profile = sketch16
pocket6.Type = "ThroughAll"
body11 = doc.addObject("PartDesign::Body", "Body010")

# Sketch on YZ plane
sketch17 = doc.addObject("Sketcher::SketchObject", "Sketch016")
body11.addObject(sketch17)
sketch17.AttachmentSupport = (doc.getObject("YZ_Plane010"), [""])
sketch17.MapMode = "FlatFace"
sketch17.addGeometry([
    Part.LineSegment(V(250, -420, 0), V(250, -570, 0)),
    Part.LineSegment(V(250, -570, 0), V(280, -570, 0)),
    Part.LineSegment(V(280, -570, 0), V(280, -420, 0)),
    Part.LineSegment(V(280, -420, 0), V(250, -420, 0)),
], False)
sketch17.addConstraint([
    Sketcher.Constraint("Coincident", 0, 2, 1, 1),
    Sketcher.Constraint("Coincident", 1, 2, 2, 1),
    Sketcher.Constraint("Coincident", 2, 2, 3, 1),
    Sketcher.Constraint("Coincident", 3, 2, 0, 1),
    Sketcher.Constraint("Vertical", 0),
    Sketcher.Constraint("Horizontal", 1),
    Sketcher.Constraint("Vertical", 2),
    Sketcher.Constraint("Horizontal", 3),
    Sketcher.Constraint("DistanceX", 1, 1, 1, 2, 30.0),
    Sketcher.Constraint("DistanceY", 0, 2, 0, 1, 150.0),
    Sketcher.Constraint("DistanceX", -1, 1, 0, 2, 250.0),
    Sketcher.Constraint("DistanceY", 0, 2, -1, 1, 570.0),
])
sketch17.setExpression("Constraints[8]", "Params.sketch17_width")
sketch17.setExpression("Constraints[9]", "Params.sketch17_height")
pad11 = doc.addObject("PartDesign::Pad", "Pad010")
body11.addObject(pad11)
pad11.Profile = sketch17
pad11.setExpression("Length", "Params.pad11_length")
pad11.Midplane = True

# Sketch on XZ plane
sketch18 = doc.addObject("Sketcher::SketchObject", "Sketch017")
body11.addObject(sketch18)
sketch18.AttachmentSupport = (doc.getObject("XZ_Plane010"), [""])
sketch18.MapMode = "FlatFace"
sketch18.AttachmentOffset = App.Placement(V(0, 0, -250), App.Rotation())
sketch18.addGeometry([
    Part.LineSegment(V(-130, -450, 0), V(-130, -540, 0)),
    Part.LineSegment(V(-130, -540, 0), V(130, -540, 0)),
    Part.LineSegment(V(130, -540, 0), V(130, -450, 0)),
    Part.LineSegment(V(130, -450, 0), V(-130, -450, 0)),
], False)
sketch18.addConstraint([
    Sketcher.Constraint("Coincident", 0, 2, 1, 1),
    Sketcher.Constraint("Coincident", 1, 2, 2, 1),
    Sketcher.Constraint("Coincident", 2, 2, 3, 1),
    Sketcher.Constraint("Coincident", 3, 2, 0, 1),
    Sketcher.Constraint("Vertical", 0),
    Sketcher.Constraint("Horizontal", 1),
    Sketcher.Constraint("Vertical", 2),
    Sketcher.Constraint("Horizontal", 3),
    Sketcher.Constraint("DistanceX", 1, 1, 1, 2, 260.0),
    Sketcher.Constraint("DistanceY", 0, 2, 0, 1, 90.0),
    Sketcher.Constraint("DistanceX", 0, 2, -1, 1, 130.0),
    Sketcher.Constraint("DistanceY", 0, 2, -1, 1, 540.0),
])
sketch18.setExpression("Constraints[8]", "Params.sketch18_width")
sketch18.setExpression("Constraints[9]", "Params.sketch18_height")
pocket7 = doc.addObject("PartDesign::Pocket", "Pocket006")
body11.addObject(pocket7)
pocket7.Profile = sketch18
pocket7.Type = "ThroughAll"

doc.recompute()
